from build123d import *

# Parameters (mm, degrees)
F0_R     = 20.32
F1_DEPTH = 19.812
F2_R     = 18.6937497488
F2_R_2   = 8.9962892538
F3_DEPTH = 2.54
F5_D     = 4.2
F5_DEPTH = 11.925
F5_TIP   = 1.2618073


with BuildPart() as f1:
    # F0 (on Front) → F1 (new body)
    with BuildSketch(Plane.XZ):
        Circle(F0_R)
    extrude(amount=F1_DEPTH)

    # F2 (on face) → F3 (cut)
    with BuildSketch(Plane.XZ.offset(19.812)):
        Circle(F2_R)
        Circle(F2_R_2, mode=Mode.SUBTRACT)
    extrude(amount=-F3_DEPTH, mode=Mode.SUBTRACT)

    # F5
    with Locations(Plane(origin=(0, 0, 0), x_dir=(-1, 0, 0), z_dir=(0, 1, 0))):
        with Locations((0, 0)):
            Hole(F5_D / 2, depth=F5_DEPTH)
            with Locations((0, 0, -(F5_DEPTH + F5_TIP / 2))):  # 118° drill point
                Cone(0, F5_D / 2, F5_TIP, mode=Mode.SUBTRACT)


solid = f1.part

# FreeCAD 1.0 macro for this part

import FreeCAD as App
import Part
import Sketcher
Q = App.Units.Quantity

doc = App.newDocument("Part")
body = doc.addObject("PartDesign::Body", "Body")

# Sketch on XZ plane
sketch1 = doc.addObject("Sketcher::SketchObject", "Sketch")
body.addObject(sketch1)
sketch1.AttachmentSupport = (doc.XZ_Plane, [""])
sketch1.MapMode = "FlatFace"
sketch1.addGeometry(Part.Circle(App.Vector(0, 0, 0), App.Vector(0, 0, 1), 20), False)
sketch1.addConstraint([
    Sketcher.Constraint("Coincident", 0, 3, -1, 1),
    Sketcher.Constraint("Diameter", 0, Q("1.6 in")),
])
pad1 = doc.addObject("PartDesign::Pad", "Pad")
body.addObject(pad1)
pad1.Profile = sketch1
pad1.Length = Q("0.78 in")

# Sketch on XZ plane
sketch2 = doc.addObject("Sketcher::SketchObject", "Sketch001")
body.addObject(sketch2)
sketch2.AttachmentSupport = (doc.XZ_Plane, [""])
sketch2.MapMode = "FlatFace"
sketch2.AttachmentOffset = App.Placement(App.Vector(0, 0, 0.78 * 25.4), App.Rotation())
sketch2.addGeometry([
    Part.Circle(App.Vector(0, 0, 0), App.Vector(0, 0, 1), 19),
    Part.Circle(App.Vector(0, 0, 0), App.Vector(0, 0, 1), 9),
], False)
sketch2.addConstraint([
    Sketcher.Constraint("Coincident", 0, 3, -1, 1),
    Sketcher.Constraint("Coincident", 1, 3, -1, 1),
    Sketcher.Constraint("Diameter", 0, Q("37.387499 mm")),
    Sketcher.Constraint("Diameter", 1, Q("17.992579 mm")),
])
pocket1 = doc.addObject("PartDesign::Pocket", "Pocket")
body.addObject(pocket1)
pocket1.Profile = sketch2
pocket1.Length = Q("0.1 in")

# Sketch on XZ plane
sketch3 = doc.addObject("Sketcher::SketchObject", "Sketch002")
body.addObject(sketch3)
sketch3.AttachmentSupport = (doc.XZ_Plane, [""])
sketch3.MapMode = "FlatFace"
sketch3.addGeometry(Part.Circle(App.Vector(0, 0, 0), App.Vector(0, 0, 1), 2.1), False)
sketch3.addConstraint([
    Sketcher.Constraint("Coincident", 0, 3, -1, 1),
    Sketcher.Constraint("Diameter", 0, Q("4.2 mm")),
])
doc.recompute()
hole = doc.addObject("PartDesign::Hole", "Hole")
body.addObject(hole)
hole.Profile = sketch3
hole.ThreadType = "None"
hole.Diameter = 4.2
hole.DepthType = "Dimension"
hole.Depth = 11.925
hole.DrillPoint = "Angled"
hole.DrillPointAngle = 118
hole.Reversed = True

doc.recompute()
